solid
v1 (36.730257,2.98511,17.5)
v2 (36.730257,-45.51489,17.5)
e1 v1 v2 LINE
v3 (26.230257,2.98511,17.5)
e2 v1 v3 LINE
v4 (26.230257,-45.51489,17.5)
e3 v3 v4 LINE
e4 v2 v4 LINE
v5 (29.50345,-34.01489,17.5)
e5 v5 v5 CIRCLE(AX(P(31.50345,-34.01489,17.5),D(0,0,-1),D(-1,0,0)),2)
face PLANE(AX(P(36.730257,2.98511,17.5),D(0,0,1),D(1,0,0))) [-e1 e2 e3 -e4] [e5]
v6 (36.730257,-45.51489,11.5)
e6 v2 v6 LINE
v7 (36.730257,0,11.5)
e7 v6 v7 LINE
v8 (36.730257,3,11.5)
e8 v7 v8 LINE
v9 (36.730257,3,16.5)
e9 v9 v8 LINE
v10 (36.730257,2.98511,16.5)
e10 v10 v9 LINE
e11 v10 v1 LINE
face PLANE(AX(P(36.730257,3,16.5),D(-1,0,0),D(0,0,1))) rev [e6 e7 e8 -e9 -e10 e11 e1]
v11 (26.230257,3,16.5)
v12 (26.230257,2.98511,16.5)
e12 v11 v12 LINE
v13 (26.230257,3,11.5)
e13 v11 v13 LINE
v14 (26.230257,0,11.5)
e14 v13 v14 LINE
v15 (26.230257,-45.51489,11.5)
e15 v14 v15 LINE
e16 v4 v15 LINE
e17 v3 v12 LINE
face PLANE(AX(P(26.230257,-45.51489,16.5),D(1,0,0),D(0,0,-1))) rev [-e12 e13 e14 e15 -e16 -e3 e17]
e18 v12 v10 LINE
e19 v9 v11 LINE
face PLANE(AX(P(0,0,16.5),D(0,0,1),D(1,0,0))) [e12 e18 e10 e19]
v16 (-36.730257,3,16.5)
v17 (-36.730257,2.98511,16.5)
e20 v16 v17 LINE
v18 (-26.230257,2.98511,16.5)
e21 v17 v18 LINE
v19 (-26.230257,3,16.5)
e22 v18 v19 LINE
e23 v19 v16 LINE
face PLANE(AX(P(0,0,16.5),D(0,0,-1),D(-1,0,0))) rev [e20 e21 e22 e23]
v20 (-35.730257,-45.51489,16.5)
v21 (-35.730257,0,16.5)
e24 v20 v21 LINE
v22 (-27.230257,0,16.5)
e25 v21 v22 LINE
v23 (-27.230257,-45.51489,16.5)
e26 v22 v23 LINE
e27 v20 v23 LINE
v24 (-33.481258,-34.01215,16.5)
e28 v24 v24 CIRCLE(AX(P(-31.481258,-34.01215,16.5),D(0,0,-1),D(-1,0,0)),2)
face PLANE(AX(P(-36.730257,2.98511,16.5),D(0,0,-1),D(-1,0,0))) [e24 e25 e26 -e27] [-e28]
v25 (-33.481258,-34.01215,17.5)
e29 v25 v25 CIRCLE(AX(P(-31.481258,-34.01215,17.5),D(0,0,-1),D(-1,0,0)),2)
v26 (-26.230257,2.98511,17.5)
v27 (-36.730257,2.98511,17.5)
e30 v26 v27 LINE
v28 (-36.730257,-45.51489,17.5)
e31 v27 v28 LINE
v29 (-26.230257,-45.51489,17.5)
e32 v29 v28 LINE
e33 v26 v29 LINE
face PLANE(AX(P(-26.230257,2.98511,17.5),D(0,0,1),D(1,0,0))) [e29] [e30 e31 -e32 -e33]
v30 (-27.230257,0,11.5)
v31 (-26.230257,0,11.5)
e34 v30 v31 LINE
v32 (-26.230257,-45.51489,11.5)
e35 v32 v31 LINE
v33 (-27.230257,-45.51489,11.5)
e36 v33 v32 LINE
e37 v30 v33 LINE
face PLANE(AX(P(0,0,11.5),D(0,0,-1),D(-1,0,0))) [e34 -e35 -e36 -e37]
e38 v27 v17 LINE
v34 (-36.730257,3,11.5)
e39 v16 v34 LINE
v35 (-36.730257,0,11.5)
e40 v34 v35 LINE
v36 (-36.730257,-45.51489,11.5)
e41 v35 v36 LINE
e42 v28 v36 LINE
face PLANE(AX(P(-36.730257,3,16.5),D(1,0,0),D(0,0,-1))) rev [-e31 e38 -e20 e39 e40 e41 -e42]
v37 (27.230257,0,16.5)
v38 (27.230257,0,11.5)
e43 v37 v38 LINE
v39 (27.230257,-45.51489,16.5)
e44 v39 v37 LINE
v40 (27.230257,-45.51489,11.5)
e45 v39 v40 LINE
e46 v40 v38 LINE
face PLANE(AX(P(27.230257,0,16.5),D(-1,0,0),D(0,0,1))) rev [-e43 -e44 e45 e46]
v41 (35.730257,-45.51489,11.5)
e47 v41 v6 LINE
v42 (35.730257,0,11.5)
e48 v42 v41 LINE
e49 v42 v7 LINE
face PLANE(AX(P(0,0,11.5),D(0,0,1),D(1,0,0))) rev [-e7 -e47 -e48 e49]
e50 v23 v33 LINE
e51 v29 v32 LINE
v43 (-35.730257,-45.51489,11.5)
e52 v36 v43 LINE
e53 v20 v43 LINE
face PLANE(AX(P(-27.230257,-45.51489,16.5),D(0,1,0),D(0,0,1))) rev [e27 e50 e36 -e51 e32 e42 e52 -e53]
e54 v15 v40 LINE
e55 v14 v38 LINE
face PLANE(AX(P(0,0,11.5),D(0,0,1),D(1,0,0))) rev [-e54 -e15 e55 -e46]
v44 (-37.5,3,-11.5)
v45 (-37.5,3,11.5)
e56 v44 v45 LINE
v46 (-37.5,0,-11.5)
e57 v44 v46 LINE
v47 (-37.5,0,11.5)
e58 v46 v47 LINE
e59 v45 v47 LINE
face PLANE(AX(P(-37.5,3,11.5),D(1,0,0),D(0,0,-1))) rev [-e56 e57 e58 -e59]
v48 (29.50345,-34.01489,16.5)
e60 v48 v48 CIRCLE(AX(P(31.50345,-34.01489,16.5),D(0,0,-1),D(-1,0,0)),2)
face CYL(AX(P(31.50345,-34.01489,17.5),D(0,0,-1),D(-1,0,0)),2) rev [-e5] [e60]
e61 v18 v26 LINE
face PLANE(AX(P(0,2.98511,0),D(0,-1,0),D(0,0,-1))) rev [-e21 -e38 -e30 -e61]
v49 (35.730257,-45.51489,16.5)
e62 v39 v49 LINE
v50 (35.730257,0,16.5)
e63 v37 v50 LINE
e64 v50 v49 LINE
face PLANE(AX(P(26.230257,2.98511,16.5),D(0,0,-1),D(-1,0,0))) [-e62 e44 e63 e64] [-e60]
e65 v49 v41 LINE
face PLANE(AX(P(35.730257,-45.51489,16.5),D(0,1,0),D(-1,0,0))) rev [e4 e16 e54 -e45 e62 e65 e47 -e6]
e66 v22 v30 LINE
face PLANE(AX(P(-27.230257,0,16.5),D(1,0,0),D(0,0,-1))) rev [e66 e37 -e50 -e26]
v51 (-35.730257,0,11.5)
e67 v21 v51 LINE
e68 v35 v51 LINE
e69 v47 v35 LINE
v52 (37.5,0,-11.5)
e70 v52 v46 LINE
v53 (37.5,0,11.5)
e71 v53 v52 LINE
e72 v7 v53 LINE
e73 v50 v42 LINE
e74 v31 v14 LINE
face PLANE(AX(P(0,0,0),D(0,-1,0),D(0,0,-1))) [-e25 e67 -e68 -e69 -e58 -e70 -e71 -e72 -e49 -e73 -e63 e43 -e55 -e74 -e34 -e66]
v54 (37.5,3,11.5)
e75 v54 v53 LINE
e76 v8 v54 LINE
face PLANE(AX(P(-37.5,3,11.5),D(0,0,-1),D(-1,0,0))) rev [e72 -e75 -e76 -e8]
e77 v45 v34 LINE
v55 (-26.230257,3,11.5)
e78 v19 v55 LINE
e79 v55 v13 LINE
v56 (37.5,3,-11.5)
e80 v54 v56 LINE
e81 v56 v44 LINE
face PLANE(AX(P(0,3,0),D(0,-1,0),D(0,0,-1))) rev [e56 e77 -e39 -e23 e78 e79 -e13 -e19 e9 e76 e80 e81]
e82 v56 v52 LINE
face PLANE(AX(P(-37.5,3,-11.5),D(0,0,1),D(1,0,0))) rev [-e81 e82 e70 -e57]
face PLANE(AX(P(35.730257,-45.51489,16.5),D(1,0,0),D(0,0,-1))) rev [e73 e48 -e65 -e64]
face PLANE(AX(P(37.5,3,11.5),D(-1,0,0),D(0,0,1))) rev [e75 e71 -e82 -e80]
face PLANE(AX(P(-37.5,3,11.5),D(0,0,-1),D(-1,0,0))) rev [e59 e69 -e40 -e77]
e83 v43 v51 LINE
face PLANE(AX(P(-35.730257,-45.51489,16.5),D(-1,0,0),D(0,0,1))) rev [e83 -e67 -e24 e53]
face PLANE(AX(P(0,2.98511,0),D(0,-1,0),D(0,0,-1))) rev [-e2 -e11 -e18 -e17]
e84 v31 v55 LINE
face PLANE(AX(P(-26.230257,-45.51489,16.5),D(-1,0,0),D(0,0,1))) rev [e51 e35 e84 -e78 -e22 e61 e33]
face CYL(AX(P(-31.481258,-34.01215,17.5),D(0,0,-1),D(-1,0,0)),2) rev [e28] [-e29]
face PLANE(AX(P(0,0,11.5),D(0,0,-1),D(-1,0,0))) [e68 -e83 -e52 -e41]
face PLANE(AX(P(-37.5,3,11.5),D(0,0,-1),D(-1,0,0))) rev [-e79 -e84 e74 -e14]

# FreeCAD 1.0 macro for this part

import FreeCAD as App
import Part
import Sketcher
from FreeCAD import Vector


def add_polygon(sketch, points):
    """Adds a closed chain of lines whose ends are joined by coincident constraints."""
    first, n = sketch.GeometryCount, len(points)
    for a, b in zip(points, points[1:] + points[:1]):
        sketch.addGeometry(Part.LineSegment(App.Vector(*a, 0), App.Vector(*b, 0)), False)
    for i in range(n):
        sketch.addConstraint(Sketcher.Constraint("Coincident", first + i, 2, first + (i + 1) % n, 1))

doc = App.newDocument("Part")
params = doc.addObject("Spreadsheet::Sheet", "Params")
for row, (alias, value) in enumerate([
    ("sketch1_width", "75 mm"),
    ("sketch1_height", "23 mm"),
    ("pad1_length", "3 mm"),
    ("sketch2_width", "1 mm"),
    ("sketch2_width2", "8.5 mm"),
    ("pad2_length", "5 mm"),
    ("sketch3_height", "1 mm"),
    ("sketch3_width", "10.5 mm"),
    ("pad3_length", "48.5 mm"),
    ("sketch4_diameter", "4 mm"),
], start=1):
    params.set(f"A{row}", alias)
    params.set(f"B{row}", "=" + value)
    params.setAlias(f"B{row}", alias)

body = doc.addObject("PartDesign::Body", "Body")

# Sketch on XZ plane
sketch1 = body.newObject("Sketcher::SketchObject", "Sketch")
sketch1.AttachmentSupport = (doc.getObject("XZ_Plane"), [""])
sketch1.MapMode = "FlatFace"
add_polygon(sketch1, [(-37.5, -11.5), (-37.5, 11.5), (37.5, 11.5), (37.5, -11.5)])  # lines 0-3
sketch1.addConstraint([
    Sketcher.Constraint("Vertical", 0),
    Sketcher.Constraint("Horizontal", 1),
    Sketcher.Constraint("Vertical", 2),
    Sketcher.Constraint("Horizontal", 3),
    Sketcher.Constraint("Symmetric", 0, 2, 2, 2, -1, 1),
    Sketcher.Constraint("DistanceX", 1, 1, 1, 2, 75.0),
    Sketcher.Constraint("DistanceY", 0, 1, 0, 2, 23.0),
])
sketch1.setExpression("Constraints[9]", "Params.sketch1_width")
sketch1.setExpression("Constraints[10]", "Params.sketch1_height")
pad1 = body.newObject("PartDesign::Pad", "Pad")
pad1.Profile = sketch1
pad1.setExpression("Length", "Params.pad1_length")
pad1.Reversed = True

# Sketch on XY plane
sketch2 = body.newObject("Sketcher::SketchObject", "Sketch001")
sketch2.AttachmentSupport = (doc.getObject("XY_Plane"), [""])
sketch2.MapMode = "FlatFace"
sketch2.AttachmentOffset = App.Placement(Vector(0, 0, 11.5), App.Rotation())
add_polygon(sketch2, [(27.230257, -45.51489), (27.230257, 0), (35.730257, 0), (35.730257, -45.51489), (36.730257, -45.51489), (36.730257, 3), (26.230257, 3), (26.230257, -45.51489)])  # lines 0-7
add_polygon(sketch2, [(-36.730257, -45.51489), (-35.730257, -45.51489), (-35.730257, 0), (-27.230257, 0), (-27.230257, -45.51489), (-26.230257, -45.51489), (-26.230257, 3), (-36.730257, 3)])  # lines 8-15
sketch2.addConstraint([
    Sketcher.Constraint("Vertical", 0),
    Sketcher.Constraint("Horizontal", 1),
    Sketcher.Constraint("Vertical", 2),
    Sketcher.Constraint("Horizontal", 3),
    Sketcher.Constraint("Vertical", 4),
    Sketcher.Constraint("Horizontal", 5),
    Sketcher.Constraint("Vertical", 6),
    Sketcher.Constraint("Horizontal", 7),
    Sketcher.Constraint("Horizontal", 8),
    Sketcher.Constraint("Vertical", 9),
    Sketcher.Constraint("Horizontal", 10),
    Sketcher.Constraint("Vertical", 11),
    Sketcher.Constraint("Horizontal", 12),
    Sketcher.Constraint("Vertical", 13),
    Sketcher.Constraint("Horizontal", 14),
    Sketcher.Constraint("Vertical", 15),
    Sketcher.Constraint("Symmetric", 1, 2, 9, 2, -1, 1),
    Sketcher.Constraint("Symmetric", 0, 2, 10, 2, -2),
    Sketcher.Constraint("Symmetric", 6, 2, 12, 2, -2),
    Sketcher.Constraint("Symmetric", 4, 2, 14, 2, -2),
    Sketcher.Constraint("Horizontal", 3, 2, 6, 2),
    Sketcher.Constraint("Horizontal", 7, 2, 8, 2),
    Sketcher.Constraint("Equal", 3, 7),
    Sketcher.Constraint("DistanceX", 3, 1, 3, 2, 1.0),
    Sketcher.Constraint("DistanceX", 1, 1, 1, 2, 8.5),
    Sketcher.Constraint("DistanceY", -1, 1, 4, 2, 3.0),
    Sketcher.Constraint("DistanceY", 0, 1, 0, 2, 45.51489),
    Sketcher.Constraint("DistanceX", -1, 1, 0, 2, 27.230257),
])
sketch2.setExpression("Constraints[39]", "Params.sketch2_width")
sketch2.setExpression("Constraints[40]", "Params.sketch2_width2")
pad2 = body.newObject("PartDesign::Pad", "Pad001")
pad2.Profile = sketch2
pad2.setExpression("Length", "Params.pad2_length")

# Sketch on XZ plane
sketch3 = body.newObject("Sketcher::SketchObject", "Sketch002")
sketch3.AttachmentSupport = (doc.getObject("XZ_Plane"), [""])
sketch3.MapMode = "FlatFace"
sketch3.AttachmentOffset = App.Placement(Vector(0, 0, 45.51489), App.Rotation())
add_polygon(sketch3, [(-36.730257, 17.5), (-36.730257, 16.5), (-26.230257, 16.5), (-26.230257, 17.5)])  # lines 0-3
add_polygon(sketch3, [(26.230257, 17.5), (26.230257, 16.5), (36.730257, 16.5), (36.730257, 17.5)])  # lines 4-7
sketch3.addConstraint([
    Sketcher.Constraint("Vertical", 0),
    Sketcher.Constraint("Horizontal", 1),
    Sketcher.Constraint("Vertical", 2),
    Sketcher.Constraint("Horizontal", 3),
    Sketcher.Constraint("Vertical", 4),
    Sketcher.Constraint("Horizontal", 5),
    Sketcher.Constraint("Vertical", 6),
    Sketcher.Constraint("Horizontal", 7),
    Sketcher.Constraint("Symmetric", 1, 2, 4, 2, -2),
    Sketcher.Constraint("Symmetric", 3, 2, 6, 2, -2),
    Sketcher.Constraint("DistanceY", 0, 2, 0, 1, 1.0),
    Sketcher.Constraint("DistanceX", 1, 1, 1, 2, 10.5),
    Sketcher.Constraint("DistanceY", -1, 1, 0, 2, 16.5),
    Sketcher.Constraint("DistanceX", 0, 2, -1, 1, 36.730257),
])
sketch3.setExpression("Constraints[18]", "Params.sketch3_height")
sketch3.setExpression("Constraints[19]", "Params.sketch3_width")
pad3 = body.newObject("PartDesign::Pad", "Pad002")
pad3.Profile = sketch3
pad3.setExpression("Length", "Params.pad3_length")
pad3.Reversed = True

# Sketch on XY plane
sketch4 = body.newObject("Sketcher::SketchObject", "Sketch003")
sketch4.AttachmentSupport = (doc.getObject("XY_Plane"), [""])
sketch4.MapMode = "FlatFace"
sketch4.AttachmentOffset = App.Placement(Vector(0, 0, 16.5), App.Rotation())
sketch4.addGeometry([
    Part.Circle(Vector(-31.481258, -34.01215, 0), Vector(0, 0, 1), 2),
    Part.Circle(Vector(31.50345, -34.01489, 0), Vector(0, 0, 1), 2),
], False)
sketch4.addConstraint([
    Sketcher.Constraint("Equal", 0, 1),
    Sketcher.Constraint("Diameter", 0, 4.0),
    Sketcher.Constraint("DistanceX", 0, 3, -1, 1, 31.481258),
    Sketcher.Constraint("DistanceY", 0, 3, -1, 1, 34.01215),
    Sketcher.Constraint("DistanceX", -1, 1, 1, 3, 31.50345),
    Sketcher.Constraint("DistanceY", 1, 3, -1, 1, 34.01489),
])
sketch4.setExpression("Constraints[1]", "Params.sketch4_diameter")
pocket1 = body.newObject("PartDesign::Pocket", "Pocket")
pocket1.Profile = sketch4
pocket1.Type = "ThroughAll"
pocket1.Reversed = True

doc.recompute()
